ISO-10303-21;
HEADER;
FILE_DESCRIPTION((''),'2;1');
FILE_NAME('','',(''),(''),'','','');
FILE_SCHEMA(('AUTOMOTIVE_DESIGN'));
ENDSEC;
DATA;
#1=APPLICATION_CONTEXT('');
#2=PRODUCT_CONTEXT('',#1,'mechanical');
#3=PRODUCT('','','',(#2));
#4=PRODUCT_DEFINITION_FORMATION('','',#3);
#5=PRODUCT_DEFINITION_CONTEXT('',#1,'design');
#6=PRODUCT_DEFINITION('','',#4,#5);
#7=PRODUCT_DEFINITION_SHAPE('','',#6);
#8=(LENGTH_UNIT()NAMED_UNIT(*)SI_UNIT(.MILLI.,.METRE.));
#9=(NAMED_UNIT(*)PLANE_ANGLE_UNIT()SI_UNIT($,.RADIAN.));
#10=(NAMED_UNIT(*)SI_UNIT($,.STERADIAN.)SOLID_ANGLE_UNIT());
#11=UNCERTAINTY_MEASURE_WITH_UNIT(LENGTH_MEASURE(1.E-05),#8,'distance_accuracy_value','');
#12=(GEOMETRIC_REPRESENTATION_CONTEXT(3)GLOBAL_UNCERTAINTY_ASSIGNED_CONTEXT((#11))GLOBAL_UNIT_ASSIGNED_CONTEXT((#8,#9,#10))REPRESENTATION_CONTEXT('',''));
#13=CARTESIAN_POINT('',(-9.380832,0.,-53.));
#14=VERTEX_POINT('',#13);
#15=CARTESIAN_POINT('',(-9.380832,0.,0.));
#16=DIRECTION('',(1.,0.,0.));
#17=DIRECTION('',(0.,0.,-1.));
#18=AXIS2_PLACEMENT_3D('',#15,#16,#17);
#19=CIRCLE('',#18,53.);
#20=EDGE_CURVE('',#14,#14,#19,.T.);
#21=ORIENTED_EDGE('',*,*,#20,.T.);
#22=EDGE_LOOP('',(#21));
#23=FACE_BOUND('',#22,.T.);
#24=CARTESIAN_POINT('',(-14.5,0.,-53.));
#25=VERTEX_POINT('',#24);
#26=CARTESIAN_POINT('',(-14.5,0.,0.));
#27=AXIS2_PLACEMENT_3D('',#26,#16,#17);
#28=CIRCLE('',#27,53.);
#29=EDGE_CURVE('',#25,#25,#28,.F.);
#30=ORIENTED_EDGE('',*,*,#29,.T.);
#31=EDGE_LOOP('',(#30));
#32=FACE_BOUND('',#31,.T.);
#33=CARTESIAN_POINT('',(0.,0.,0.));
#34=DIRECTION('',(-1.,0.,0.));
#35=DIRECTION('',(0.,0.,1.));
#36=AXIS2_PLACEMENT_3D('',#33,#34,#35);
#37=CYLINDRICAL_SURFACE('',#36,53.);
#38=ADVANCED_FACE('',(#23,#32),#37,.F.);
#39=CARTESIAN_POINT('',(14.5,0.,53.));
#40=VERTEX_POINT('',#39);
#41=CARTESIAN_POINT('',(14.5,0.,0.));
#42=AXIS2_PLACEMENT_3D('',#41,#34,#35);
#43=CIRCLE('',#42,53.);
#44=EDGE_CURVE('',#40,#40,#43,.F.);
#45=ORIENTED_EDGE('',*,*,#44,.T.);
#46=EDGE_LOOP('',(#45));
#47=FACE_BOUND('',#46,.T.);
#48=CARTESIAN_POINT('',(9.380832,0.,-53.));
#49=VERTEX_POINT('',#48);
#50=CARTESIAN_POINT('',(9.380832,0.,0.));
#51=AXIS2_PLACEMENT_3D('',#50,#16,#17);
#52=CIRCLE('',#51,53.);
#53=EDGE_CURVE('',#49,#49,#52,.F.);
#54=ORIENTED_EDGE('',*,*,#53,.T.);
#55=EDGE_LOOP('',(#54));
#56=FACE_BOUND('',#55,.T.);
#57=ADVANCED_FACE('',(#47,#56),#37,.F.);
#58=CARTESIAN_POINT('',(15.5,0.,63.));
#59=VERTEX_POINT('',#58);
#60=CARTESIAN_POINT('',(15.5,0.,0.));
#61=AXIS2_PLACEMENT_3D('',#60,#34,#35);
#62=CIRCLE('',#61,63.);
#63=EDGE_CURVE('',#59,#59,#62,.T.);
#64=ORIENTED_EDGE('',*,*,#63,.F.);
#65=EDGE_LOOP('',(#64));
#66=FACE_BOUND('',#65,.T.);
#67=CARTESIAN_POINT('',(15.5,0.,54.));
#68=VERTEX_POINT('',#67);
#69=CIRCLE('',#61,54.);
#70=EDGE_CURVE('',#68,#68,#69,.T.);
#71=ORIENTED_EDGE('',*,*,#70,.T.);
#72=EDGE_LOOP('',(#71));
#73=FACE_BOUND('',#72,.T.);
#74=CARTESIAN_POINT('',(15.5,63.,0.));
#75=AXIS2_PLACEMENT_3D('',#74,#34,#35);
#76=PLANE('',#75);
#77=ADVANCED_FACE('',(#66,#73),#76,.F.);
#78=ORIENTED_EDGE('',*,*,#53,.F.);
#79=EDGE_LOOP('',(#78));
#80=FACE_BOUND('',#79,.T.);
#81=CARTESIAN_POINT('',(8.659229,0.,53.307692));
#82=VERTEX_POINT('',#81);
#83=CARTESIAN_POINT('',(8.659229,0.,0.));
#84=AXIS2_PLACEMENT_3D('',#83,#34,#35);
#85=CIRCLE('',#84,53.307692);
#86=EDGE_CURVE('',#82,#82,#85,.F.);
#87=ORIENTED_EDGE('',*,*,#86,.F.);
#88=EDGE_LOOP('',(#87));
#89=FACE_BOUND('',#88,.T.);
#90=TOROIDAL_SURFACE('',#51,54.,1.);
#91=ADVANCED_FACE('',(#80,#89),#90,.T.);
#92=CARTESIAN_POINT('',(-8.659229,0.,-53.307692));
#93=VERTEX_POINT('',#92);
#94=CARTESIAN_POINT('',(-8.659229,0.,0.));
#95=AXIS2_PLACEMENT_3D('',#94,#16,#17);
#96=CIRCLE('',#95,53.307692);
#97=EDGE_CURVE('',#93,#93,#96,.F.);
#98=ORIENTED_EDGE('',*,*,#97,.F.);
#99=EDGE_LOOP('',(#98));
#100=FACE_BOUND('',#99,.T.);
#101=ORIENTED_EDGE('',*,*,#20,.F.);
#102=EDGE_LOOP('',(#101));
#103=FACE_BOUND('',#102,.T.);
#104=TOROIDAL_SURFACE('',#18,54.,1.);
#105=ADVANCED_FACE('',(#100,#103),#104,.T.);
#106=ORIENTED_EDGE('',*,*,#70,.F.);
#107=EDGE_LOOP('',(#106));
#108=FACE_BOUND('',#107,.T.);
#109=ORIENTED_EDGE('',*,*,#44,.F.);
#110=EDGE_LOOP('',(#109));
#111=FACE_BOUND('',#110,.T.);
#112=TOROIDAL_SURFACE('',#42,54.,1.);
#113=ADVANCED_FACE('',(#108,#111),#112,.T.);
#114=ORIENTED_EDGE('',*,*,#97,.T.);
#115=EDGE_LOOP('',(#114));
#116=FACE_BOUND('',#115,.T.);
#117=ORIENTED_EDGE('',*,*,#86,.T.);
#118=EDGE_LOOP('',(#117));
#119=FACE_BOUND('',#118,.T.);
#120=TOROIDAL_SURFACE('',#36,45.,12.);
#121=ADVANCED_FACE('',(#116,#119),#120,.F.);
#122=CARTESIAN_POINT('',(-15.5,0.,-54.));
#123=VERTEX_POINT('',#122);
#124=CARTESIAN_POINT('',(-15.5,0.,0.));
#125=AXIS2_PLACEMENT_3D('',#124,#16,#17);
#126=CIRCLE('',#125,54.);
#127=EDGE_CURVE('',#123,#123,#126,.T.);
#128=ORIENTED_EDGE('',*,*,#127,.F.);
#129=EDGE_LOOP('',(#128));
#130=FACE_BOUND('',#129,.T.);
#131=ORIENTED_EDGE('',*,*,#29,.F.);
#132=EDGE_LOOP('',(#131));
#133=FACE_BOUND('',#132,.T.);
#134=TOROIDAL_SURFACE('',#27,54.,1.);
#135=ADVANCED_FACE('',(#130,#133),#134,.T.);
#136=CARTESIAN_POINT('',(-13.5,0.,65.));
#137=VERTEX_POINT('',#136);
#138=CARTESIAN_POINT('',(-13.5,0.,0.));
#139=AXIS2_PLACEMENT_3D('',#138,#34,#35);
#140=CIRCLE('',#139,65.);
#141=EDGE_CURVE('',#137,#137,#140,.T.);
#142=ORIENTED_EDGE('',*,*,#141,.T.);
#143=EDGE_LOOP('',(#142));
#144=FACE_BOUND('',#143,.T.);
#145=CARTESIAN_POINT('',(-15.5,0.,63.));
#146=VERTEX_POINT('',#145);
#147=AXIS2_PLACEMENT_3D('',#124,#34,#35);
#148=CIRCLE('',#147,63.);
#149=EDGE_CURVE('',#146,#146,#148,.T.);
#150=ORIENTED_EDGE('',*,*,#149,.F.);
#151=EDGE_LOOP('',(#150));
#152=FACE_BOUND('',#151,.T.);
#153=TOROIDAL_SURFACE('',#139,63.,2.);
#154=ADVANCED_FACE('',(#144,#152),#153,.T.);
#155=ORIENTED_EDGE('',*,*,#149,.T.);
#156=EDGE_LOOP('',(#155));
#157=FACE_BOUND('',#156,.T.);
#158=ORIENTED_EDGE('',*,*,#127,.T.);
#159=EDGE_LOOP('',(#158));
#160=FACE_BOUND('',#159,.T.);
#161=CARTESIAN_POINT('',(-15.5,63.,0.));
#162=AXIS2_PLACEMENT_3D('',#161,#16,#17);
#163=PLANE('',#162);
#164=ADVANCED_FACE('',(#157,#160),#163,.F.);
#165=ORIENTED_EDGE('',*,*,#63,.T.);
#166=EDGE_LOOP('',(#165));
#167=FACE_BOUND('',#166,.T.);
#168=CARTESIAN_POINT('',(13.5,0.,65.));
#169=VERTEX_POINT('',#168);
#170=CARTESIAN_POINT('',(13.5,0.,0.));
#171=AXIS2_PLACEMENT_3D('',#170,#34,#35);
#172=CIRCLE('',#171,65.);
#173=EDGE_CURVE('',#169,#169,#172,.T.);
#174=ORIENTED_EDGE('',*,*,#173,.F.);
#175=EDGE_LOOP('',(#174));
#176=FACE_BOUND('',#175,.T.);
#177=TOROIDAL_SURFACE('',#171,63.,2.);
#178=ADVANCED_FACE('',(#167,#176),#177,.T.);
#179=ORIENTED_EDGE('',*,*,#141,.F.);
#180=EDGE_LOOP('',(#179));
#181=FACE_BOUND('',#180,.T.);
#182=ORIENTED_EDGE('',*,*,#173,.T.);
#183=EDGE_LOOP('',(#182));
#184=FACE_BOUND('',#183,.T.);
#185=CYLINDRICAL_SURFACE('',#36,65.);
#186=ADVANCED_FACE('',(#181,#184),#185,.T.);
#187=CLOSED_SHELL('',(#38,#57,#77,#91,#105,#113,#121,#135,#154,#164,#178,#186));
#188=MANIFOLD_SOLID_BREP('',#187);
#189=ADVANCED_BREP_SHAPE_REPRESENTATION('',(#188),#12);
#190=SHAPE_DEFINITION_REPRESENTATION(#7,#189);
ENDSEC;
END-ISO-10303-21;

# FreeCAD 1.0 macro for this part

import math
import FreeCAD as App
import Part
import Sketcher


def edges_at(feature, points):
    """Names of the edges that pass closest to the given points."""
    edges = feature.Shape.Edges
    near = lambda p: min(range(len(edges)), key=lambda i: edges[i].distToShape(Part.Vertex(*p))[0])
    return sorted({f"Edge{near(p) + 1}" for p in points})

doc = App.newDocument("Part")
body = doc.addObject("PartDesign::Body", "Body")

# Sketch on XY plane
sketch1 = body.newObject("Sketcher::SketchObject", "Sketch")
sketch1.AttachmentSupport = (doc.getObject("XY_Plane"), [""])
sketch1.MapMode = "FlatFace"
sketch1.addGeometry(Part.LineSegment(App.Vector(8.9, 53, 0), App.Vector(15.5, 53, 0)), False)
sketch1.addGeometry(Part.LineSegment(App.Vector(15.5, 53, 0), App.Vector(15.5, 63, 0)), False)
sketch1.addGeometry(Part.ArcOfCircle(Part.Circle(App.Vector(13.5, 63, 0), App.Vector(0, 0, 1), 2), math.radians(0), math.radians(90)), False)
sketch1.addGeometry(Part.LineSegment(App.Vector(13.5, 65, 0), App.Vector(-13.5, 65, 0)), False)
sketch1.addGeometry(Part.ArcOfCircle(Part.Circle(App.Vector(-13.5, 63, 0), App.Vector(0, 0, 1), 2), math.radians(90), math.radians(180)), False)
sketch1.addGeometry(Part.LineSegment(App.Vector(-15.5, 63, 0), App.Vector(-15.5, 53, 0)), False)
sketch1.addGeometry(Part.LineSegment(App.Vector(-15.5, 53, 0), App.Vector(-8.9, 53, 0)), False)
sketch1.addGeometry(Part.ArcOfCircle(Part.Circle(App.Vector(0, 45, 0), App.Vector(0, 0, 1), 12), math.radians(42), math.radians(138)), False)
sketch1.addConstraint(Sketcher.Constraint("Coincident", 0, 2, 1, 1))
sketch1.addConstraint(Sketcher.Constraint("Tangent", 1, 2, 2, 1))
sketch1.addConstraint(Sketcher.Constraint("Tangent", 2, 2, 3, 1))
sketch1.addConstraint(Sketcher.Constraint("Tangent", 3, 2, 4, 1))
sketch1.addConstraint(Sketcher.Constraint("Tangent", 4, 2, 5, 1))
sketch1.addConstraint(Sketcher.Constraint("Coincident", 5, 2, 6, 1))
sketch1.addConstraint(Sketcher.Constraint("Coincident", 6, 2, 7, 2))
sketch1.addConstraint(Sketcher.Constraint("Coincident", 7, 1, 0, 1))
sketch1.addConstraint(Sketcher.Constraint("Horizontal", 0))
sketch1.addConstraint(Sketcher.Constraint("Vertical", 1))
sketch1.addConstraint(Sketcher.Constraint("Horizontal", 3))
sketch1.addConstraint(Sketcher.Constraint("Vertical", 5))
sketch1.addConstraint(Sketcher.Constraint("Horizontal", 6))
sketch1.addConstraint(Sketcher.Constraint("Equal", 2, 4))
sketch1.addConstraint(Sketcher.Constraint("Symmetric", 0, 2, 5, 2, -2))
sketch1.addConstraint(Sketcher.Constraint("PointOnObject", 7, 3, -2))
sketch1.addConstraint(Sketcher.Constraint("Radius", 2, 2.0))
sketch1.addConstraint(Sketcher.Constraint("Radius", 7, 12.0))
sketch1.addConstraint(Sketcher.Constraint("DistanceX", 3, 2, 3, 1, 27.0))
sketch1.addConstraint(Sketcher.Constraint("DistanceY", 1, 1, 1, 2, 10.0))
sketch1.addConstraint(Sketcher.Constraint("DistanceY", -1, 1, 2, 3, 63.0))
sketch1.addConstraint(Sketcher.Constraint("DistanceY", -1, 1, 7, 3, 45.0))
revolution = body.newObject("PartDesign::Revolution", "Revolution")
revolution.Profile = sketch1
revolution.ReferenceAxis = (sketch1, ["H_Axis"])
revolution.Angle = 360
doc.recompute()

fillet = body.newObject("PartDesign::Fillet", "Fillet")
fillet.Base = (revolution, edges_at(revolution, [
    (15.5, 0, -53),
    (8.944, 0, -53),
    (-8.944, 0, -53),
    (-15.5, 0, -53),
]))
fillet.Radius = 1

doc.recompute()
